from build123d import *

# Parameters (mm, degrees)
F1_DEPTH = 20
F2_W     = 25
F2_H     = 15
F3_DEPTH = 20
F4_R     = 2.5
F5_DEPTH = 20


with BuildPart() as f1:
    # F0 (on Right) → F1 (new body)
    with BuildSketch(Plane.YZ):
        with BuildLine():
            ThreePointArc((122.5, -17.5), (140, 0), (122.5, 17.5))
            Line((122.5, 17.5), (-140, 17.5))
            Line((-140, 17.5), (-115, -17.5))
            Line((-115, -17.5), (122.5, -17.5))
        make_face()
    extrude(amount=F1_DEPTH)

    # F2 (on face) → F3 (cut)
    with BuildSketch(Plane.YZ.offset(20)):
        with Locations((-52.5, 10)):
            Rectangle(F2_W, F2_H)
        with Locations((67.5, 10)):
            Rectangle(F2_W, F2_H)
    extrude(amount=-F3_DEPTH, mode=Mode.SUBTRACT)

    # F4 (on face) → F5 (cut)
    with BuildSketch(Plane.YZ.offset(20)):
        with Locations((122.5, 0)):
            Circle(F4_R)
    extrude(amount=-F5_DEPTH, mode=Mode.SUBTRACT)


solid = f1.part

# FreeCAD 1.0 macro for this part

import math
import FreeCAD as App
import Part
import Sketcher
from FreeCAD import Vector
Q = App.Units.Quantity

doc = App.newDocument("Part")
params = doc.addObject("Spreadsheet::Sheet", "Params")
for row, (alias, value) in enumerate([
    ("sketch1_radius", "17.5 mm"),
    ("sketch1_width", "262.5 mm"),
    ("sketch1_width2", "237.5 mm"),
    ("pad1_length", "20 mm"),
    ("sketch2_width", "25 mm"),
    ("sketch2_height", "15 mm"),
    ("pocket1_length", "20 mm"),
    ("sketch3_diameter", "5 mm"),
    ("pocket2_length", "20 mm"),
], start=1):
    params.set(f"A{row}", alias)
    params.set(f"B{row}", "=" + value)
    params.setAlias(f"B{row}", alias)

body = doc.addObject("PartDesign::Body", "Body")

# Sketch on YZ plane
sketch1 = doc.addObject("Sketcher::SketchObject", "Sketch")
body.addObject(sketch1)
sketch1.AttachmentSupport = (doc.YZ_Plane, [""])
sketch1.MapMode = "FlatFace"
sketch1.addGeometry(Part.ArcOfCircle(Part.Circle(Vector(122.5, 0, 0), Vector(0, 0, 1), 17.5), math.radians(-90), math.radians(90)), False)
sketch1.addGeometry(Part.LineSegment(Vector(122.5, 17.5, 0), Vector(-140, 17.5, 0)), False)
sketch1.addGeometry(Part.LineSegment(Vector(-140, 17.5, 0), Vector(-115, -17.5, 0)), False)
sketch1.addGeometry(Part.LineSegment(Vector(-115, -17.5, 0), Vector(122.5, -17.5, 0)), False)
sketch1.addConstraint(Sketcher.Constraint("Tangent", 0, 2, 1, 1))
sketch1.addConstraint(Sketcher.Constraint("Coincident", 1, 2, 2, 1))
sketch1.addConstraint(Sketcher.Constraint("Coincident", 2, 2, 3, 1))
sketch1.addConstraint(Sketcher.Constraint("Tangent", 3, 2, 0, 1))
sketch1.addConstraint(Sketcher.Constraint("Horizontal", 1))
sketch1.addConstraint(Sketcher.Constraint("Horizontal", 3))
sketch1.addConstraint(Sketcher.Constraint("PointOnObject", 0, 3, -1))
sketch1.addConstraint(Sketcher.Constraint("Radius", 0, Q("17.5 mm")))
sketch1.addConstraint(Sketcher.Constraint("DistanceX", 1, 2, 1, 1, Q("262.5 mm")))
sketch1.addConstraint(Sketcher.Constraint("DistanceX", 3, 1, 3, 2, Q("237.5 mm")))
sketch1.addConstraint(Sketcher.Constraint("DistanceX", 1, 2, -1, 1, Q("140 mm")))
sketch1.setExpression("Constraints[7]", "Params.sketch1_radius")
sketch1.setExpression("Constraints[8]", "Params.sketch1_width")
sketch1.setExpression("Constraints[9]", "Params.sketch1_width2")
pad1 = doc.addObject("PartDesign::Pad", "Pad")
body.addObject(pad1)
pad1.Profile = sketch1
pad1.setExpression("Length", "Params.pad1_length")

# Sketch on YZ plane
sketch2 = doc.addObject("Sketcher::SketchObject", "Sketch001")
body.addObject(sketch2)
sketch2.AttachmentSupport = (doc.YZ_Plane, [""])
sketch2.MapMode = "FlatFace"
sketch2.AttachmentOffset = App.Placement(Vector(0, 0, 20), App.Rotation())
sketch2.addGeometry(Part.LineSegment(Vector(-65, 17.5, 0), Vector(-65, 2.5, 0)), False)
sketch2.addGeometry(Part.LineSegment(Vector(-65, 2.5, 0), Vector(-40, 2.5, 0)), False)
sketch2.addGeometry(Part.LineSegment(Vector(-40, 2.5, 0), Vector(-40, 17.5, 0)), False)
sketch2.addGeometry(Part.LineSegment(Vector(-40, 17.5, 0), Vector(-65, 17.5, 0)), False)
sketch2.addGeometry(Part.LineSegment(Vector(55, 17.5, 0), Vector(55, 2.5, 0)), False)
sketch2.addGeometry(Part.LineSegment(Vector(55, 2.5, 0), Vector(80, 2.5, 0)), False)
sketch2.addGeometry(Part.LineSegment(Vector(80, 2.5, 0), Vector(80, 17.5, 0)), False)
sketch2.addGeometry(Part.LineSegment(Vector(80, 17.5, 0), Vector(55, 17.5, 0)), False)
sketch2.addConstraint(Sketcher.Constraint("Coincident", 0, 2, 1, 1))
sketch2.addConstraint(Sketcher.Constraint("Coincident", 1, 2, 2, 1))
sketch2.addConstraint(Sketcher.Constraint("Coincident", 2, 2, 3, 1))
sketch2.addConstraint(Sketcher.Constraint("Coincident", 3, 2, 0, 1))
sketch2.addConstraint(Sketcher.Constraint("Coincident", 4, 2, 5, 1))
sketch2.addConstraint(Sketcher.Constraint("Coincident", 5, 2, 6, 1))
sketch2.addConstraint(Sketcher.Constraint("Coincident", 6, 2, 7, 1))
sketch2.addConstraint(Sketcher.Constraint("Coincident", 7, 2, 4, 1))
sketch2.addConstraint(Sketcher.Constraint("Vertical", 0))
sketch2.addConstraint(Sketcher.Constraint("Horizontal", 1))
sketch2.addConstraint(Sketcher.Constraint("Vertical", 2))
sketch2.addConstraint(Sketcher.Constraint("Horizontal", 3))
sketch2.addConstraint(Sketcher.Constraint("Vertical", 4))
sketch2.addConstraint(Sketcher.Constraint("Horizontal", 5))
sketch2.addConstraint(Sketcher.Constraint("Vertical", 6))
sketch2.addConstraint(Sketcher.Constraint("Horizontal", 7))
sketch2.addConstraint(Sketcher.Constraint("Horizontal", 1, 2, 4, 2))
sketch2.addConstraint(Sketcher.Constraint("Horizontal", 3, 2, 6, 2))
sketch2.addConstraint(Sketcher.Constraint("Equal", 3, 5))
sketch2.addConstraint(Sketcher.Constraint("DistanceX", 1, 1, 1, 2, Q("25 mm")))
sketch2.addConstraint(Sketcher.Constraint("DistanceY", 0, 2, 0, 1, Q("15 mm")))
sketch2.addConstraint(Sketcher.Constraint("DistanceX", 0, 2, -1, 1, Q("65 mm")))
sketch2.addConstraint(Sketcher.Constraint("DistanceX", -1, 1, 4, 2, Q("55 mm")))
sketch2.addConstraint(Sketcher.Constraint("DistanceY", -1, 1, 0, 2, Q("2.5 mm")))
sketch2.setExpression("Constraints[19]", "Params.sketch2_width")
sketch2.setExpression("Constraints[20]", "Params.sketch2_height")
pocket1 = doc.addObject("PartDesign::Pocket", "Pocket")
body.addObject(pocket1)
pocket1.Profile = sketch2
pocket1.setExpression("Length", "Params.pocket1_length")

# Sketch on YZ plane
sketch3 = doc.addObject("Sketcher::SketchObject", "Sketch002")
body.addObject(sketch3)
sketch3.AttachmentSupport = (doc.YZ_Plane, [""])
sketch3.MapMode = "FlatFace"
sketch3.AttachmentOffset = App.Placement(Vector(0, 0, 20), App.Rotation())
sketch3.addGeometry(Part.Circle(Vector(122.5, 0, 0), Vector(0, 0, 1), 2.5), False)
sketch3.addConstraint(Sketcher.Constraint("PointOnObject", 0, 3, -1))
sketch3.addConstraint(Sketcher.Constraint("Diameter", 0, Q("5 mm")))
sketch3.addConstraint(Sketcher.Constraint("DistanceX", -1, 1, 0, 3, Q("122.5 mm")))
sketch3.setExpression("Constraints[1]", "Params.sketch3_diameter")
pocket2 = doc.addObject("PartDesign::Pocket", "Pocket001")
body.addObject(pocket2)
pocket2.Profile = sketch3
pocket2.setExpression("Length", "Params.pocket2_length")

doc.recompute()
